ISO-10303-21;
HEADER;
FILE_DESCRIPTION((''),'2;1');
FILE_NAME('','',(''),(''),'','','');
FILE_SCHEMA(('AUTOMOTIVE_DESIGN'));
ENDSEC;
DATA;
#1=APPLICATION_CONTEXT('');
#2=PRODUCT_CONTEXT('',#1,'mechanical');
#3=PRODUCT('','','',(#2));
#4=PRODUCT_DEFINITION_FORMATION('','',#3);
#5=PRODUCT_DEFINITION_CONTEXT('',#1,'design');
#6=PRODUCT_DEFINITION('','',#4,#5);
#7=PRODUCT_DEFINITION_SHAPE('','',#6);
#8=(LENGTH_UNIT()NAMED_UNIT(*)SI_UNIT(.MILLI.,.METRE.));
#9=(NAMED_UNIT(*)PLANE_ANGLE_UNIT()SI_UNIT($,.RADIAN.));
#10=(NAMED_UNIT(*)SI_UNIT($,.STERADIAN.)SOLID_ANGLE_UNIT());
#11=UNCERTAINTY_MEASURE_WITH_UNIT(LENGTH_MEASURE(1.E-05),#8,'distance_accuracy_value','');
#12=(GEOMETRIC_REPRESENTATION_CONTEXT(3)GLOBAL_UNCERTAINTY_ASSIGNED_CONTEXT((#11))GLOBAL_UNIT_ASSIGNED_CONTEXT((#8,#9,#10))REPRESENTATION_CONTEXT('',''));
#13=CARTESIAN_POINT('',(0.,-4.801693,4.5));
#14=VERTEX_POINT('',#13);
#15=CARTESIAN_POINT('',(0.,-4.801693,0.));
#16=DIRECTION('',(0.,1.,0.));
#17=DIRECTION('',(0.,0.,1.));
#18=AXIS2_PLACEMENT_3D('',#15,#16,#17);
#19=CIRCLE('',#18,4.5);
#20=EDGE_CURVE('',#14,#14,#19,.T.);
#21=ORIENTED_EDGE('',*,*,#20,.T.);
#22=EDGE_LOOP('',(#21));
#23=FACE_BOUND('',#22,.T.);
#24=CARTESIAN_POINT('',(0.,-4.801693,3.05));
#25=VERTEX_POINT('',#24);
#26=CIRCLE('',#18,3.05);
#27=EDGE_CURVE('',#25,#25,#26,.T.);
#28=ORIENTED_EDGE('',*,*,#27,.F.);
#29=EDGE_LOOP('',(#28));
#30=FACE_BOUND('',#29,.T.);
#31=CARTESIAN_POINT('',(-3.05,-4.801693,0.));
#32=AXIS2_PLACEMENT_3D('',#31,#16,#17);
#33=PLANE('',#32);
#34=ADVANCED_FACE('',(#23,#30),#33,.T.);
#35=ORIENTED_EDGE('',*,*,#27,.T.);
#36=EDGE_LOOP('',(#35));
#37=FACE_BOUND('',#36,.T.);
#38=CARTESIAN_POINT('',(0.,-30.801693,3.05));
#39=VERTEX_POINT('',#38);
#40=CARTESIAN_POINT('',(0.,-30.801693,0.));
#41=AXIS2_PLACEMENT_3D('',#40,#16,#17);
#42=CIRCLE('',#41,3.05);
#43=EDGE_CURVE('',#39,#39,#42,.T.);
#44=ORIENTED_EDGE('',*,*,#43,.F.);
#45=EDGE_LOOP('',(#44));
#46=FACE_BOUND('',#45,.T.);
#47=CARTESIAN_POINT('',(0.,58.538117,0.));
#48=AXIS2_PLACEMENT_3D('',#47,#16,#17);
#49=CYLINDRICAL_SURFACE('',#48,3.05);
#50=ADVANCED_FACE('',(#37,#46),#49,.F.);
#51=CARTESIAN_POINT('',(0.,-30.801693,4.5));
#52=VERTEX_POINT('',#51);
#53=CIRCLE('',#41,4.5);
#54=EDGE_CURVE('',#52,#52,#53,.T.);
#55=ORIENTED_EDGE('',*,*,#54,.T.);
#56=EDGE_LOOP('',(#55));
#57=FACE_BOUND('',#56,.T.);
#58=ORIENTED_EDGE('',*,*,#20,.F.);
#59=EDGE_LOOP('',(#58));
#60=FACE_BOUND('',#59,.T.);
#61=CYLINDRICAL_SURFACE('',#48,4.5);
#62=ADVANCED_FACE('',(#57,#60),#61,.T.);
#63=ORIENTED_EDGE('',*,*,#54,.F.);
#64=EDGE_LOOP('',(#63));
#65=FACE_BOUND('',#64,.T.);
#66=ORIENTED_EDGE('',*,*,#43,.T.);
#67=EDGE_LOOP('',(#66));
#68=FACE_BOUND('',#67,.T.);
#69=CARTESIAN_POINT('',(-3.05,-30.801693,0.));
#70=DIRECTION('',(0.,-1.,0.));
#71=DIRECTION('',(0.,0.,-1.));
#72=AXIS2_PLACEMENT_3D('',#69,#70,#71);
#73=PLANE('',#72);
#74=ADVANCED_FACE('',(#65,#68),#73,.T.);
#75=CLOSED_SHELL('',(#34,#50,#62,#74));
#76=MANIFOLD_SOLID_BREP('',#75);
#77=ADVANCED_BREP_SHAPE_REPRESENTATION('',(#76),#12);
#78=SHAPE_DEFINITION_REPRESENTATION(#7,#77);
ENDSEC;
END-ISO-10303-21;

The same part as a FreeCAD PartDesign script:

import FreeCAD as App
import Part
import Sketcher


def add_polygon(sketch, points):
    """Adds a closed chain of lines whose ends are joined by coincident constraints."""
    first, n = sketch.GeometryCount, len(points)
    for a, b in zip(points, points[1:] + points[:1]):
        sketch.addGeometry(Part.LineSegment(App.Vector(*a, 0), App.Vector(*b, 0)), False)
    for i in range(n):
        sketch.addConstraint(Sketcher.Constraint("Coincident", first + i, 2, first + (i + 1) % n, 1))

doc = App.newDocument("Part")
params = doc.addObject("Spreadsheet::Sheet", "Params")
for row, (alias, value) in enumerate([
    ("sketch1_height", "26 mm"),
    ("sketch1_width", "1.45 mm"),
    ("revolution_angle", "360 deg"),
], start=1):
    params.set(f"A{row}", alias)
    params.set(f"B{row}", "=" + value)
    params.setAlias(f"B{row}", alias)

body = doc.addObject("PartDesign::Body", "Body")

sketch1 = body.newObject("Sketcher::SketchObject", "Sketch")
sketch1.AttachmentSupport = (doc.getObject("XY_Plane"), [""])
sketch1.MapMode = "FlatFace"
add_polygon(sketch1, [(-4.5, -4.801693), (-4.5, -30.801693), (-3.05, -30.801693), (-3.05, -4.801693)])
sketch1.addConstraint([
    Sketcher.Constraint("Vertical", 0),
    Sketcher.Constraint("Horizontal", 1),
    Sketcher.Constraint("Vertical", 2),
    Sketcher.Constraint("Horizontal", 3),
    Sketcher.Constraint("DistanceY", 0, 2, 0, 1, 26.0),
    Sketcher.Constraint("DistanceX", 1, 1, 1, 2, 1.45),
    Sketcher.Constraint("DistanceX", 0, 2, -1, 1, 4.5),
    Sketcher.Constraint("DistanceY", 0, 2, -1, 1, 30.801693),
])
sketch1.setExpression("Constraints[8]", "Params.sketch1_height")
sketch1.setExpression("Constraints[9]", "Params.sketch1_width")
revolution = body.newObject("PartDesign::Revolution", "Revolution")
revolution.Profile = sketch1
revolution.ReferenceAxis = (sketch1, ["V_Axis"])
revolution.setExpression("Angle", "Params.revolution_angle")

doc.recompute()
